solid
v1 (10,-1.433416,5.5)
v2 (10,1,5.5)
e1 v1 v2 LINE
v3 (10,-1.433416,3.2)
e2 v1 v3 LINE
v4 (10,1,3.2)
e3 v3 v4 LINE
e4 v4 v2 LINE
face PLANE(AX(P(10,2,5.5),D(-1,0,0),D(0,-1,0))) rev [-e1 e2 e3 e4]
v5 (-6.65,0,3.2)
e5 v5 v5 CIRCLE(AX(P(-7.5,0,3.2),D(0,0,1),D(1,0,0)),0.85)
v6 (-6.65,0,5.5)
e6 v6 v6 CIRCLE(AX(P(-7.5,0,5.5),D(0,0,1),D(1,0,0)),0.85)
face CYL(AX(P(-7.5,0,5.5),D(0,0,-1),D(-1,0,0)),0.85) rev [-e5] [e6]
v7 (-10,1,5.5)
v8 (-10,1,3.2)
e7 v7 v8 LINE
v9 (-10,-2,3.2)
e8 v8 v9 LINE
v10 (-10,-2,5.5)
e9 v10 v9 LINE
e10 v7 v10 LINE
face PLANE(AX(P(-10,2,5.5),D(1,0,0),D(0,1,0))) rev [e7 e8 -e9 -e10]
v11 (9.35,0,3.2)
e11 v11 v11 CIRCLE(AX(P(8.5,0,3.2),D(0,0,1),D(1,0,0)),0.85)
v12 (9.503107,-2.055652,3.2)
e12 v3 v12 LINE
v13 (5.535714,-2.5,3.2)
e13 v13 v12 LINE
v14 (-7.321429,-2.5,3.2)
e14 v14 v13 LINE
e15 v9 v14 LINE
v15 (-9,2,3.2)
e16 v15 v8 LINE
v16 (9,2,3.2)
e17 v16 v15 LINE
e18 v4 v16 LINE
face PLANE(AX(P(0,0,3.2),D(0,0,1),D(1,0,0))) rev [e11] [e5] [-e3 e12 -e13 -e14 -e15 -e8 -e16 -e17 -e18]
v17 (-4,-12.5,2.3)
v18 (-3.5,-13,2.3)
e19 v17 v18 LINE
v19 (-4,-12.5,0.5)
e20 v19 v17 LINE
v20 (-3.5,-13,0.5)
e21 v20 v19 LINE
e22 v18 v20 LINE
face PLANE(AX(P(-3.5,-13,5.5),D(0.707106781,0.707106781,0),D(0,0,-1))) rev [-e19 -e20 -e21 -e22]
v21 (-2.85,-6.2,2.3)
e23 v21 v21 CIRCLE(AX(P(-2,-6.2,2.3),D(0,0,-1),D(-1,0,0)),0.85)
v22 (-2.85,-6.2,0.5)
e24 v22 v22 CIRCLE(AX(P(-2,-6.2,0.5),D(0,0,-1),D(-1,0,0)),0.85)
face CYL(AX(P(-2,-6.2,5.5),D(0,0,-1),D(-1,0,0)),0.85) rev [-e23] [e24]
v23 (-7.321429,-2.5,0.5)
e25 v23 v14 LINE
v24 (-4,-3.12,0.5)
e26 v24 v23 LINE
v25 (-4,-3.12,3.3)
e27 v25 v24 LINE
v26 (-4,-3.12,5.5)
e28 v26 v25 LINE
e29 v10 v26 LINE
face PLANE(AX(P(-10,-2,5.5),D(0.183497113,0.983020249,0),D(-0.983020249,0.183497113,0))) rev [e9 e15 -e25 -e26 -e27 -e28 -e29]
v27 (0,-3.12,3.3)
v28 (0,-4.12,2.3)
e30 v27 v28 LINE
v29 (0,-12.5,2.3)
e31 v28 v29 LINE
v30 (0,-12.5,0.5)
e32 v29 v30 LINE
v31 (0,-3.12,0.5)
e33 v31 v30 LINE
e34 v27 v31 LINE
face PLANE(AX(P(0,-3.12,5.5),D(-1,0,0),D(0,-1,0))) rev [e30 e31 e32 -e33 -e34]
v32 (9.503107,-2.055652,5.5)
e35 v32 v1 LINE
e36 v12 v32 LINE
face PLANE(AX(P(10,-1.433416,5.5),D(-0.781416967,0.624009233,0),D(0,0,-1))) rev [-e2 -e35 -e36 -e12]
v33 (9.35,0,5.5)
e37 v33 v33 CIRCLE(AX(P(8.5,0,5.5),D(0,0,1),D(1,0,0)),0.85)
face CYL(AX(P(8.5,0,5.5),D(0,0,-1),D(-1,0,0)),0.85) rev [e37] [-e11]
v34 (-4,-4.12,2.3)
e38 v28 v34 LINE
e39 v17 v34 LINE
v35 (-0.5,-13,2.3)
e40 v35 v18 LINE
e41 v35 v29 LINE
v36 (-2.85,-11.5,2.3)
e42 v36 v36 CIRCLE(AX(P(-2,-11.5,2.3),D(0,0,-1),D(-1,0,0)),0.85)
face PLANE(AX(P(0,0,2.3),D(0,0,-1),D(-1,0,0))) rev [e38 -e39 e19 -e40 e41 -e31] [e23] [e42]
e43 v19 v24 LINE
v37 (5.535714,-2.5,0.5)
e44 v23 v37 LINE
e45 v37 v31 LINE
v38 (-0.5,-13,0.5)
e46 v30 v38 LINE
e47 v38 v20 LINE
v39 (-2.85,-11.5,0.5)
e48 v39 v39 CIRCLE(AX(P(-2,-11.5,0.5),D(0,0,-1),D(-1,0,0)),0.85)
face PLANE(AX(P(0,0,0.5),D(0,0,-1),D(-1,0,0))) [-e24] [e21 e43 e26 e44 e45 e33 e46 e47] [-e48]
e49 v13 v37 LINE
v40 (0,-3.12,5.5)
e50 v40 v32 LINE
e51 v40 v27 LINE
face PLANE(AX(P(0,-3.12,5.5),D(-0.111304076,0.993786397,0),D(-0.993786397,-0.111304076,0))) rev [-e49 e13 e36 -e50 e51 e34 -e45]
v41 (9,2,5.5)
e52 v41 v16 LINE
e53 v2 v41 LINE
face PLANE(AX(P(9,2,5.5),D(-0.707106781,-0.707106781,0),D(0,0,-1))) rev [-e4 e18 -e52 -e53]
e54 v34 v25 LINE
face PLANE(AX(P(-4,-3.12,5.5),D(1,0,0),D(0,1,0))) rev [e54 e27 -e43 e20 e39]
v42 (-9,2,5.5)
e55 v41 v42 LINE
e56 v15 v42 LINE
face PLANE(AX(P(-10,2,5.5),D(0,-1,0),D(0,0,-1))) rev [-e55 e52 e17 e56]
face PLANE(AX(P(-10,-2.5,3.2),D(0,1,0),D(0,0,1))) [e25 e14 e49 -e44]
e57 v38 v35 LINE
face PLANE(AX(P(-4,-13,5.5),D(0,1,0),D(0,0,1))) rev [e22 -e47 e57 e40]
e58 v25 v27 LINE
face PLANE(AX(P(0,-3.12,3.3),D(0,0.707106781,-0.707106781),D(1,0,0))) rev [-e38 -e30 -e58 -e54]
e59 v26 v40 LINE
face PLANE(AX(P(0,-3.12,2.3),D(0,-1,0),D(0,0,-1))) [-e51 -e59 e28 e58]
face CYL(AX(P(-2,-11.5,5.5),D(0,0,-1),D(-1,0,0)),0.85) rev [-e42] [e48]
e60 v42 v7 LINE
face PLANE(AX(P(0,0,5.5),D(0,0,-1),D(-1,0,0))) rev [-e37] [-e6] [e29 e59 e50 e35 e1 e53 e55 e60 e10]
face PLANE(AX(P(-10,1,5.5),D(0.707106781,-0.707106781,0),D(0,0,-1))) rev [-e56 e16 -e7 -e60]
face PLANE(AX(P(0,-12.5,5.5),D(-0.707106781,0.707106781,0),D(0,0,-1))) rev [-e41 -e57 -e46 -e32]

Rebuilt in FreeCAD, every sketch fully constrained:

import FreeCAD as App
import Part
import Sketcher


def edges_at(feature, points):
    """Names of the edges that pass closest to the given points."""
    edges = feature.Shape.Edges
    near = lambda p: min(range(len(edges)), key=lambda i: edges[i].distToShape(Part.Vertex(*p))[0])
    return sorted({f"Edge{near(p) + 1}" for p in points})


def add_polygon(sketch, points):
    """Adds a closed chain of lines whose ends are joined by coincident constraints."""
    first, n = sketch.GeometryCount, len(points)
    for a, b in zip(points, points[1:] + points[:1]):
        sketch.addGeometry(Part.LineSegment(App.Vector(*a, 0), App.Vector(*b, 0)), False)
    for i in range(n):
        sketch.addConstraint(Sketcher.Constraint("Coincident", first + i, 2, first + (i + 1) % n, 1))

doc = App.newDocument("Part")
body = doc.addObject("PartDesign::Body", "Body")

# Sketch on XY plane
sketch1 = body.newObject("Sketcher::SketchObject", "Sketch")
sketch1.AttachmentSupport = (doc.getObject("XY_Plane"), [""])
sketch1.MapMode = "FlatFace"
add_polygon(sketch1, [(10, 2), (-10, 2), (-10, -2), (-4, -3.1), (-4, -13), (0, -13), (0, -3.1), (10, -2)])  # lines 0-7
sketch1.addGeometry(Part.Circle(App.Vector(-2, -11.5, 0), App.Vector(0, 0, 1), 0.8), False)  # 8
sketch1.addGeometry(Part.Circle(App.Vector(-2, -6.2, 0), App.Vector(0, 0, 1), 0.8), False)  # 9
sketch1.addGeometry(Part.Circle(App.Vector(8.5, 0, 0), App.Vector(0, 0, 1), 0.8), False)  # 10
sketch1.addGeometry(Part.Circle(App.Vector(-7.5, 0, 0), App.Vector(0, 0, 1), 0.8), False)  # 11
sketch1.addConstraint(Sketcher.Constraint("Horizontal", 0))
sketch1.addConstraint(Sketcher.Constraint("Vertical", 1))
sketch1.addConstraint(Sketcher.Constraint("Vertical", 3))
sketch1.addConstraint(Sketcher.Constraint("Horizontal", 4))
sketch1.addConstraint(Sketcher.Constraint("Vertical", 5))
sketch1.addConstraint(Sketcher.Constraint("Vertical", 7))
sketch1.addConstraint(Sketcher.Constraint("Equal", 8, 9))
sketch1.addConstraint(Sketcher.Constraint("Equal", 9, 10))
sketch1.addConstraint(Sketcher.Constraint("Equal", 10, 11))
sketch1.addConstraint(Sketcher.Constraint("Symmetric", 0, 2, 6, 2, -1, 1))
sketch1.addConstraint(Sketcher.Constraint("PointOnObject", 10, 3, -1))
sketch1.addConstraint(Sketcher.Constraint("PointOnObject", 11, 3, -1))
sketch1.addConstraint(Sketcher.Constraint("PointOnObject", 4, 2, -2))
sketch1.addConstraint(Sketcher.Constraint("Horizontal", 2, 2, 5, 2))
sketch1.addConstraint(Sketcher.Constraint("Horizontal", 1, 2, 6, 2))
sketch1.addConstraint(Sketcher.Constraint("Vertical", 8, 3, 9, 3))
sketch1.addConstraint(Sketcher.Constraint("Equal", 4, 1))
sketch1.addConstraint(Sketcher.Constraint("Diameter", 8, 1.7))
sketch1.addConstraint(Sketcher.Constraint("DistanceX", 0, 2, 0, 1, 20.0))
sketch1.addConstraint(Sketcher.Constraint("DistanceX", 4, 1, 4, 2, 4.0))
sketch1.addConstraint(Sketcher.Constraint("DistanceX", 8, 3, -1, 1, 2.0))
sketch1.addConstraint(Sketcher.Constraint("DistanceY", 3, 2, -1, 1, 13.0))
sketch1.addConstraint(Sketcher.Constraint("DistanceX", 11, 3, 10, 3, 16.0))
sketch1.addConstraint(Sketcher.Constraint("DistanceY", 3, 2, 3, 1, 9.88))
sketch1.addConstraint(Sketcher.Constraint("DistanceY", 8, 3, -1, 1, 11.5))
sketch1.addConstraint(Sketcher.Constraint("DistanceY", 9, 3, -1, 1, 6.2))
sketch1.addConstraint(Sketcher.Constraint("DistanceX", -1, 1, 10, 3, 8.5))
pad1 = body.newObject("PartDesign::Pad", "Pad")
pad1.Profile = sketch1
pad1.Length = 5.5

# Sketch on XY plane
sketch2 = body.newObject("Sketcher::SketchObject", "Sketch001")
sketch2.AttachmentSupport = (doc.getObject("XY_Plane"), [""])
sketch2.MapMode = "FlatFace"
sketch2.AttachmentOffset = App.Placement(App.Vector(0, 0, 2.3), App.Rotation())
add_polygon(sketch2, [(0, -3.1), (0, -13), (-4, -13), (-4, -3.1)])  # lines 0-3
sketch2.addGeometry(Part.Circle(App.Vector(-2, -11.5, 0), App.Vector(0, 0, 1), 0.8), False)  # 4
sketch2.addGeometry(Part.Circle(App.Vector(-2, -6.2, 0), App.Vector(0, 0, 1), 0.8), False)  # 5
sketch2.addConstraint(Sketcher.Constraint("Vertical", 0))
sketch2.addConstraint(Sketcher.Constraint("Horizontal", 1))
sketch2.addConstraint(Sketcher.Constraint("Vertical", 2))
sketch2.addConstraint(Sketcher.Constraint("Horizontal", 3))
sketch2.addConstraint(Sketcher.Constraint("Equal", 4, 5))
sketch2.addConstraint(Sketcher.Constraint("PointOnObject", 0, 2, -2))
sketch2.addConstraint(Sketcher.Constraint("Vertical", 4, 3, 5, 3))
sketch2.addConstraint(Sketcher.Constraint("Diameter", 4, 1.7))
sketch2.addConstraint(Sketcher.Constraint("DistanceX", 1, 2, 1, 1, 4.0))
sketch2.addConstraint(Sketcher.Constraint("DistanceX", 4, 3, -1, 1, 2.0))
sketch2.addConstraint(Sketcher.Constraint("DistanceY", 0, 2, -1, 1, 13.0))
sketch2.addConstraint(Sketcher.Constraint("DistanceY", 0, 2, 0, 1, 9.88))
sketch2.addConstraint(Sketcher.Constraint("DistanceY", 4, 3, -1, 1, 11.5))
sketch2.addConstraint(Sketcher.Constraint("DistanceY", 5, 3, -1, 1, 6.2))
pocket1 = body.newObject("PartDesign::Pocket", "Pocket")
pocket1.Profile = sketch2
pocket1.Length = 3.2
pocket1.Reversed = True
doc.recompute()

chamfer = body.newObject("PartDesign::Chamfer", "Chamfer")
chamfer.Base = (pocket1, edges_at(pocket1, [(-2, -3.12, 2.3)]))
chamfer.Size = 1
doc.recompute()

chamfer2 = body.newObject("PartDesign::Chamfer", "Chamfer001")
chamfer2.Base = (chamfer, edges_at(chamfer, [(-10, 2, 2.75), (10, 2, 2.75)]))
chamfer2.Size = 1
doc.recompute()

chamfer3 = body.newObject("PartDesign::Chamfer", "Chamfer002")
chamfer3.Base = (chamfer2, edges_at(chamfer2, [(0, -13, 1.15), (-4, -13, 1.15)]))
chamfer3.Size = 0.5

# Sketch on XY plane
sketch3 = body.newObject("Sketcher::SketchObject", "Sketch002")
sketch3.AttachmentSupport = (doc.getObject("XY_Plane"), [""])
sketch3.MapMode = "FlatFace"
add_polygon(sketch3, [(-10, -2.5), (10, -2.5), (10, 1), (9, 2), (-9, 2), (-10, 1)])  # lines 0-5
sketch3.addGeometry(Part.Circle(App.Vector(-7.5, 0, 0), App.Vector(0, 0, 1), 0.8), False)  # 6
sketch3.addGeometry(Part.Circle(App.Vector(8.5, 0, 0), App.Vector(0, 0, 1), 0.8), False)  # 7
sketch3.addConstraint(Sketcher.Constraint("Horizontal", 0))
sketch3.addConstraint(Sketcher.Constraint("Vertical", 1))
sketch3.addConstraint(Sketcher.Constraint("Horizontal", 3))
sketch3.addConstraint(Sketcher.Constraint("Vertical", 5))
sketch3.addConstraint(Sketcher.Constraint("Equal", 6, 7))
sketch3.addConstraint(Sketcher.Constraint("Symmetric", 1, 2, 4, 2, -2))
sketch3.addConstraint(Sketcher.Constraint("PointOnObject", 6, 3, -1))
sketch3.addConstraint(Sketcher.Constraint("PointOnObject", 7, 3, -1))
sketch3.addConstraint(Sketcher.Constraint("Perpendicular", 2, 4))
sketch3.addConstraint(Sketcher.Constraint("Equal", 2, 4))
sketch3.addConstraint(Sketcher.Constraint("Diameter", 6, 1.7))
sketch3.addConstraint(Sketcher.Constraint("DistanceX", 0, 1, 0, 2, 20.0))
sketch3.addConstraint(Sketcher.Constraint("DistanceX", 3, 2, 3, 1, 18.0))
sketch3.addConstraint(Sketcher.Constraint("DistanceY", 1, 1, 1, 2, 3.5))
sketch3.addConstraint(Sketcher.Constraint("DistanceY", -1, 1, 1, 2, 1.0))
sketch3.addConstraint(Sketcher.Constraint("DistanceX", 6, 3, 7, 3, 16.0))
sketch3.addConstraint(Sketcher.Constraint("DistanceX", 6, 3, -1, 1, 7.5))
pocket2 = body.newObject("PartDesign::Pocket", "Pocket001")
pocket2.Profile = sketch3
pocket2.Length = 3.2
pocket2.Reversed = True
doc.recompute()

chamfer4 = body.newObject("PartDesign::Chamfer", "Chamfer003")
chamfer4.Base = (pocket2, edges_at(pocket2, [(10, -2, 4.35)]))
chamfer4.ChamferType = "Two distances"
chamfer4.Size = 0.5
chamfer4.Size2 = 0.566584

# Sketch on XY plane
sketch4 = body.newObject("Sketcher::SketchObject", "Sketch003")
sketch4.AttachmentSupport = (doc.getObject("XY_Plane"), [""])
sketch4.MapMode = "FlatFace"
add_polygon(sketch4, [(-4, -3.1), (-7.3, -2.5), (5.5, -2.5), (0, -3.1), (0, -12.5), (-0.5, -13), (-3.5, -13), (-4, -12.5)])  # lines 0-7
sketch4.addConstraint(Sketcher.Constraint("Horizontal", 1))
sketch4.addConstraint(Sketcher.Constraint("Vertical", 3))
sketch4.addConstraint(Sketcher.Constraint("Horizontal", 5))
sketch4.addConstraint(Sketcher.Constraint("Vertical", 7))
sketch4.addConstraint(Sketcher.Constraint("PointOnObject", 2, 2, -2))
sketch4.addConstraint(Sketcher.Constraint("Perpendicular", 4, 6))
sketch4.addConstraint(Sketcher.Constraint("Horizontal", 3, 2, 6, 2))
sketch4.addConstraint(Sketcher.Constraint("Horizontal", 2, 2, 7, 2))
sketch4.addConstraint(Sketcher.Constraint("Equal", 4, 6))
sketch4.addConstraint(Sketcher.Constraint("DistanceX", 5, 2, 5, 1, 3.0))
sketch4.addConstraint(Sketcher.Constraint("DistanceY", 4, 2, -1, 1, 13.0))
sketch4.addConstraint(Sketcher.Constraint("DistanceX", 6, 2, -1, 1, 4.0))
sketch4.addConstraint(Sketcher.Constraint("DistanceY", 3, 2, 1, 2, 10.0))
sketch4.addConstraint(Sketcher.Constraint("DistanceY", 3, 2, 3, 1, 9.38))
sketch4.addConstraint(Sketcher.Constraint("Distance", 0, 3.3788))
sketch4.addConstraint(Sketcher.Constraint("DistanceX", 1, 1, 1, 2, 12.857143))
pocket3 = body.newObject("PartDesign::Pocket", "Pocket002")
pocket3.Profile = sketch4
pocket3.Length = 0.5
pocket3.Reversed = True

doc.recompute()
